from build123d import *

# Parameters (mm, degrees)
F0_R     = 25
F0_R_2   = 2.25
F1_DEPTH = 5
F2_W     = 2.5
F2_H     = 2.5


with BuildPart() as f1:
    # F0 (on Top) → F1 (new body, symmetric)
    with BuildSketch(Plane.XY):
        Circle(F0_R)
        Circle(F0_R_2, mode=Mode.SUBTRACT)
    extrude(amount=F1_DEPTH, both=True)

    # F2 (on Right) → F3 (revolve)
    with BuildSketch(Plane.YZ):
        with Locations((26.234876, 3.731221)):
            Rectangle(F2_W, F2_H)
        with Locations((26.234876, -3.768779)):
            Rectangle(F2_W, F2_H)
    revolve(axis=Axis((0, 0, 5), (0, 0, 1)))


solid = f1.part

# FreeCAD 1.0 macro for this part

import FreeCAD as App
import Part
import Sketcher

V = App.Vector

doc = App.newDocument("Part")
body = doc.addObject("PartDesign::Body", "Body")

sketch1 = body.newObject("Sketcher::SketchObject", "Sketch")
sketch1.AttachmentSupport = (doc.getObject("XY_Plane"), [""])
sketch1.MapMode = "FlatFace"
sketch1.addGeometry([
    Part.Circle(V(0, 0, 0), V(0, 0, 1), 25),
    Part.Circle(V(0, 0, 0), V(0, 0, 1), 2.2),
], False)
sketch1.addConstraint([
    Sketcher.Constraint("Coincident", 0, 3, -1, 1),
    Sketcher.Constraint("Coincident", 1, 3, -1, 1),
    Sketcher.Constraint("Diameter", 0, 50.0),
    Sketcher.Constraint("Diameter", 1, 4.5),
])
pad1 = body.newObject("PartDesign::Pad", "Pad")
pad1.Profile = sketch1
pad1.Length = 10
pad1.Midplane = True

sketch2 = body.newObject("Sketcher::SketchObject", "Sketch001")
sketch2.AttachmentSupport = (doc.getObject("YZ_Plane"), [""])
sketch2.MapMode = "FlatFace"
sketch2.addGeometry([
    Part.LineSegment(V(25, 5, 0), V(25, 2.5, 0)),
    Part.LineSegment(V(25, 2.5, 0), V(27.5, 2.5, 0)),
    Part.LineSegment(V(27.5, 2.5, 0), V(27.5, 5, 0)),
    Part.LineSegment(V(27.5, 5, 0), V(25, 5, 0)),
    Part.LineSegment(V(25, -2.5, 0), V(25, -5, 0)),
    Part.LineSegment(V(25, -5, 0), V(27.5, -5, 0)),
    Part.LineSegment(V(27.5, -5, 0), V(27.5, -2.5, 0)),
    Part.LineSegment(V(27.5, -2.5, 0), V(25, -2.5, 0)),
], False)
sketch2.addConstraint([
    Sketcher.Constraint("Coincident", 0, 2, 1, 1),
    Sketcher.Constraint("Coincident", 1, 2, 2, 1),
    Sketcher.Constraint("Coincident", 2, 2, 3, 1),
    Sketcher.Constraint("Coincident", 3, 2, 0, 1),
    Sketcher.Constraint("Coincident", 4, 2, 5, 1),
    Sketcher.Constraint("Coincident", 5, 2, 6, 1),
    Sketcher.Constraint("Coincident", 6, 2, 7, 1),
    Sketcher.Constraint("Coincident", 7, 2, 4, 1),
    Sketcher.Constraint("Vertical", 0),
    Sketcher.Constraint("Horizontal", 1),
    Sketcher.Constraint("Vertical", 2),
    Sketcher.Constraint("Horizontal", 3),
    Sketcher.Constraint("Vertical", 4),
    Sketcher.Constraint("Horizontal", 5),
    Sketcher.Constraint("Vertical", 6),
    Sketcher.Constraint("Horizontal", 7),
    Sketcher.Constraint("Vertical", 3, 2, 4, 2),
    Sketcher.Constraint("Vertical", 2, 2, 5, 2),
    Sketcher.Constraint("Equal", 7, 0),
    Sketcher.Constraint("Equal", 2, 4),
    Sketcher.Constraint("DistanceX", 1, 1, 1, 2, 2.5),
    Sketcher.Constraint("DistanceY", 4, 2, 3, 2, 10.0),
    Sketcher.Constraint("DistanceY", -1, 1, 0, 2, 2.481221),
    Sketcher.Constraint("DistanceX", -1, 1, 0, 2, 24.984876),
])
revolution = body.newObject("PartDesign::Revolution", "Revolution")
revolution.Profile = sketch2
revolution.ReferenceAxis = (sketch2, ["V_Axis"])
revolution.Angle = 360

doc.recompute()
